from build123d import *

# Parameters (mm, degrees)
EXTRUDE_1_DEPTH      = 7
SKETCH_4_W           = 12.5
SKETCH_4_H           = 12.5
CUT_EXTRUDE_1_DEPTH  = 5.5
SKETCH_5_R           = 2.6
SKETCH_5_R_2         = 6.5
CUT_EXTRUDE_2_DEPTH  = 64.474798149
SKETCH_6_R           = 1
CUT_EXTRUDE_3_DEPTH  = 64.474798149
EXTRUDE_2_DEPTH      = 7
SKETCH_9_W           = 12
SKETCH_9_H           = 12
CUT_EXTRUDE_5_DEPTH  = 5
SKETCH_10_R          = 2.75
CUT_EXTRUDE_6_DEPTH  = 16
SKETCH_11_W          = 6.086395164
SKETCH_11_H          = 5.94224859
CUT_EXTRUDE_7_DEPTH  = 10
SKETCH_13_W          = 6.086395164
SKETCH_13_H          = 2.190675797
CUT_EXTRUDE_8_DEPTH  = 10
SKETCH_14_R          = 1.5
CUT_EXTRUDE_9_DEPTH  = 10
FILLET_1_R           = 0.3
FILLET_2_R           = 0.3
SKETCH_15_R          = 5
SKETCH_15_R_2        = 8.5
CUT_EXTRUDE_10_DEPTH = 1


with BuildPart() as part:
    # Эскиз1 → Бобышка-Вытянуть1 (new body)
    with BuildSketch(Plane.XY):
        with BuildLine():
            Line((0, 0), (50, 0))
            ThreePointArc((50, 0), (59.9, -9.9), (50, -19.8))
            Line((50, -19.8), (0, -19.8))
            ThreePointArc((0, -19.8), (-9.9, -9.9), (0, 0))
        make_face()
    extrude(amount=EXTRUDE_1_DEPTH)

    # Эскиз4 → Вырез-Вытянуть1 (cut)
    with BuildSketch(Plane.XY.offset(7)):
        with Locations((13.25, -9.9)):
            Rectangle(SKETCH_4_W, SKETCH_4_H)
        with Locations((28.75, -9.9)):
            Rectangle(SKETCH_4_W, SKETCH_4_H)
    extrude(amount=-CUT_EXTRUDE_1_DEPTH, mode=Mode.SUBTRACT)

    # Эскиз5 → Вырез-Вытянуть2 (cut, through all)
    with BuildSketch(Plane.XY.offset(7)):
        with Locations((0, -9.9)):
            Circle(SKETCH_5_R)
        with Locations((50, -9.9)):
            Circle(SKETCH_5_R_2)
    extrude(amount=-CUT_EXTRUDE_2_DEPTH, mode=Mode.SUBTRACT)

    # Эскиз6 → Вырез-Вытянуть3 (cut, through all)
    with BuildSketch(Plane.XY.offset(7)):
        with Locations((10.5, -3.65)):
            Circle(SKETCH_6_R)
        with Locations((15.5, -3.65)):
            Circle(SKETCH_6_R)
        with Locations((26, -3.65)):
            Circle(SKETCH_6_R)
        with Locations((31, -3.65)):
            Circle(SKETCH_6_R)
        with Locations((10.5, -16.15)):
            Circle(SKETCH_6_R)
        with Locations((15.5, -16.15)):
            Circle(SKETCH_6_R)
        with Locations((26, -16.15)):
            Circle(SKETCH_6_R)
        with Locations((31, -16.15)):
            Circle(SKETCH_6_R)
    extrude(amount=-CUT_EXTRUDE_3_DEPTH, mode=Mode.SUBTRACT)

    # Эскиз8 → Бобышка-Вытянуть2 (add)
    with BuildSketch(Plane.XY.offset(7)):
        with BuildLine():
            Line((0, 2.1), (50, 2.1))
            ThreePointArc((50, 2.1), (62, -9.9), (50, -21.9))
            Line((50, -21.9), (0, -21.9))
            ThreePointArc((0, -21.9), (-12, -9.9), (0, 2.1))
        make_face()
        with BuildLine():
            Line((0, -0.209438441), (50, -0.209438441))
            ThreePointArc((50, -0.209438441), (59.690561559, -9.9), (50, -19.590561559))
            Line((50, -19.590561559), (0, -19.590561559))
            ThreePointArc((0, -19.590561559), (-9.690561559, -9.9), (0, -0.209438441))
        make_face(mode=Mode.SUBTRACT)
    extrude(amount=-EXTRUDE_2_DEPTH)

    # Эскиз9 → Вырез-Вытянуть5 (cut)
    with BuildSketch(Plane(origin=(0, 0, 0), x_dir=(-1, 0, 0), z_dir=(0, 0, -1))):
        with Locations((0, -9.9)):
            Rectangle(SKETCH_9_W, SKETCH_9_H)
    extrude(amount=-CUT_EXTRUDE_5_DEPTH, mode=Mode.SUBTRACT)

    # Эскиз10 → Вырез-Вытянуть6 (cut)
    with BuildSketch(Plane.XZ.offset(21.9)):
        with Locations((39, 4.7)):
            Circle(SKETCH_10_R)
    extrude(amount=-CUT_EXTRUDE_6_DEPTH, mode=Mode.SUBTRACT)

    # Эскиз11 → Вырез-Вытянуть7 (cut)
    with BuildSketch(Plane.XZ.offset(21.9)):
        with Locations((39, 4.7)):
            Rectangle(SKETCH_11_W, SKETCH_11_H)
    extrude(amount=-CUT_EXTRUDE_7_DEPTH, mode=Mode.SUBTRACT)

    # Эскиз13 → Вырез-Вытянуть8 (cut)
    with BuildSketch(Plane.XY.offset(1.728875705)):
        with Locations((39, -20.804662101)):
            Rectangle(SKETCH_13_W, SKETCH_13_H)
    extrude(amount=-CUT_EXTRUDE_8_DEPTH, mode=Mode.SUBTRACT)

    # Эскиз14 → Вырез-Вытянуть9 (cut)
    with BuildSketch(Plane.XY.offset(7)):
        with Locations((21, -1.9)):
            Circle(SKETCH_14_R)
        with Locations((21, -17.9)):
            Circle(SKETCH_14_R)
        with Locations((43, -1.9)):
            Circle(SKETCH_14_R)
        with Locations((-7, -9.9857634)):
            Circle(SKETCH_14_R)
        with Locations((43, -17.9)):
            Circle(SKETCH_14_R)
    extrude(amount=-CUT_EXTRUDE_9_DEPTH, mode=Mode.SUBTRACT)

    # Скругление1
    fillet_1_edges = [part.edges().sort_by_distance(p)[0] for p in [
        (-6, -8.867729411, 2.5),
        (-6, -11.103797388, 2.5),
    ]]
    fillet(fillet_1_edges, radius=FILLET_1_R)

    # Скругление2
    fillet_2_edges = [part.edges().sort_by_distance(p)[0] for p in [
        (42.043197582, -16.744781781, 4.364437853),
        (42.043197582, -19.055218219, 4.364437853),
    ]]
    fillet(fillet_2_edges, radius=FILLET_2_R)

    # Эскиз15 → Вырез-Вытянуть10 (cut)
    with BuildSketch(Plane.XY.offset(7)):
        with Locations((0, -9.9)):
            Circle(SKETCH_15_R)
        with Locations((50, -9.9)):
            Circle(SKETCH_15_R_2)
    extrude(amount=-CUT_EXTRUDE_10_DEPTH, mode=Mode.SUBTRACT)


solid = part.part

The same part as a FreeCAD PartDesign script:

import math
import FreeCAD as App
import Part
import Sketcher
from FreeCAD import Vector


def edges_at(feature, points):
    """Names of the edges that pass closest to the given points."""
    edges = feature.Shape.Edges
    near = lambda p: min(range(len(edges)), key=lambda i: edges[i].distToShape(Part.Vertex(*p))[0])
    return sorted({f"Edge{near(p) + 1}" for p in points})


def add_polygon(sketch, points):
    """Adds a closed chain of lines whose ends are joined by coincident constraints."""
    first, n = sketch.GeometryCount, len(points)
    for a, b in zip(points, points[1:] + points[:1]):
        sketch.addGeometry(Part.LineSegment(App.Vector(*a, 0), App.Vector(*b, 0)), False)
    for i in range(n):
        sketch.addConstraint(Sketcher.Constraint("Coincident", first + i, 2, first + (i + 1) % n, 1))

doc = App.newDocument("Part")
params = doc.addObject("Spreadsheet::Sheet", "Params")
for row, (alias, value) in enumerate([
    ("sketch1_radius", "9.9 mm"),
    ("sketch1_width", "50 mm"),
    ("pad1_length", "7 mm"),
    ("sketch2_width", "12.5 mm"),
    ("pocket1_length", "5.5 mm"),
    ("sketch3_diameter", "13 mm"),
    ("sketch3_diameter2", "5.2 mm"),
    ("sketch4_diameter", "2 mm"),
    ("sketch5_radius", "12 mm"),
    ("sketch5_width", "50 mm"),
    ("pad2_length", "7 mm"),
    ("sketch6_width", "12 mm"),
    ("pocket4_length", "5 mm"),
    ("sketch7_diameter", "5.5 mm"),
    ("pocket5_length", "16 mm"),
    ("pocket6_length", "10 mm"),
    ("pocket7_length", "10 mm"),
    ("sketch10_diameter", "3 mm"),
    ("pocket8_length", "10 mm"),
    ("fillet_radius", "0.3 mm"),
    ("fillet2_radius", "0.3 mm"),
    ("sketch11_diameter", "10 mm"),
    ("sketch11_diameter2", "17 mm"),
    ("pocket9_length", "1 mm"),
], start=1):
    params.set(f"A{row}", alias)
    params.set(f"B{row}", "=" + value)
    params.setAlias(f"B{row}", alias)

body = doc.addObject("PartDesign::Body", "Body")

# Sketch on XY plane
sketch1 = body.newObject("Sketcher::SketchObject", "Sketch")
sketch1.AttachmentSupport = (doc.getObject("XY_Plane"), [""])
sketch1.MapMode = "FlatFace"
sketch1.addGeometry(Part.LineSegment(Vector(50, 0, 0), Vector(0, 0, 0)), False)
sketch1.addGeometry(Part.ArcOfCircle(Part.Circle(Vector(0, -10, 0), Vector(0, 0, 1), 10), math.radians(90), math.radians(270)), False)
sketch1.addGeometry(Part.LineSegment(Vector(0, -20, 0), Vector(50, -20, 0)), False)
sketch1.addGeometry(Part.ArcOfCircle(Part.Circle(Vector(50, -10, 0), Vector(0, 0, 1), 10), math.radians(-90), math.radians(90)), False)
sketch1.addConstraint(Sketcher.Constraint("Tangent", 0, 2, 1, 1))
sketch1.addConstraint(Sketcher.Constraint("Tangent", 1, 2, 2, 1))
sketch1.addConstraint(Sketcher.Constraint("Tangent", 2, 2, 3, 1))
sketch1.addConstraint(Sketcher.Constraint("Tangent", 3, 2, 0, 1))
sketch1.addConstraint(Sketcher.Constraint("Horizontal", 0))
sketch1.addConstraint(Sketcher.Constraint("Horizontal", 2))
sketch1.addConstraint(Sketcher.Constraint("Coincident", 0, 2, -1, 1))
sketch1.addConstraint(Sketcher.Constraint("Radius", 1, 9.9))
sketch1.addConstraint(Sketcher.Constraint("DistanceX", 0, 2, 0, 1, 50.0))
sketch1.setExpression("Constraints[7]", "Params.sketch1_radius")
sketch1.setExpression("Constraints[8]", "Params.sketch1_width")
pad1 = body.newObject("PartDesign::Pad", "Pad")
pad1.Profile = sketch1
pad1.setExpression("Length", "Params.pad1_length")

# Sketch on XY plane
sketch2 = body.newObject("Sketcher::SketchObject", "Sketch001")
sketch2.AttachmentSupport = (doc.getObject("XY_Plane"), [""])
sketch2.MapMode = "FlatFace"
sketch2.AttachmentOffset = App.Placement(Vector(0, 0, 7), App.Rotation())
add_polygon(sketch2, [(7, -4), (7, -16), (20, -16), (20, -4)])  # lines 0-3
add_polygon(sketch2, [(22, -4), (22, -16), (35, -16), (35, -4)])  # lines 4-7
sketch2.addConstraint(Sketcher.Constraint("Vertical", 0))
sketch2.addConstraint(Sketcher.Constraint("Horizontal", 1))
sketch2.addConstraint(Sketcher.Constraint("Vertical", 2))
sketch2.addConstraint(Sketcher.Constraint("Horizontal", 3))
sketch2.addConstraint(Sketcher.Constraint("Vertical", 4))
sketch2.addConstraint(Sketcher.Constraint("Horizontal", 5))
sketch2.addConstraint(Sketcher.Constraint("Vertical", 6))
sketch2.addConstraint(Sketcher.Constraint("Horizontal", 7))
sketch2.addConstraint(Sketcher.Constraint("Horizontal", 1, 2, 4, 2))
sketch2.addConstraint(Sketcher.Constraint("Horizontal", 3, 2, 6, 2))
sketch2.addConstraint(Sketcher.Constraint("Equal", 3, 5))
sketch2.addConstraint(Sketcher.Constraint("Equal", 7, 0))
sketch2.addConstraint(Sketcher.Constraint("DistanceX", 1, 1, 1, 2, 12.5))
sketch2.addConstraint(Sketcher.Constraint("DistanceX", -1, 1, 0, 2, 7.0))
sketch2.addConstraint(Sketcher.Constraint("DistanceX", -1, 1, 5, 2, 35.0))
sketch2.addConstraint(Sketcher.Constraint("DistanceY", 0, 2, -1, 1, 16.15))
sketch2.setExpression("Constraints[20]", "Params.sketch2_width")
pocket1 = body.newObject("PartDesign::Pocket", "Pocket")
pocket1.Profile = sketch2
pocket1.setExpression("Length", "Params.pocket1_length")

# Sketch on XY plane
sketch3 = body.newObject("Sketcher::SketchObject", "Sketch002")
sketch3.AttachmentSupport = (doc.getObject("XY_Plane"), [""])
sketch3.MapMode = "FlatFace"
sketch3.AttachmentOffset = App.Placement(Vector(0, 0, 7), App.Rotation())
sketch3.addGeometry(Part.Circle(Vector(0, -9.9, 0), Vector(0, 0, 1), 2.6), False)
sketch3.addGeometry(Part.Circle(Vector(50, -9.9, 0), Vector(0, 0, 1), 6.5), False)
sketch3.addConstraint(Sketcher.Constraint("PointOnObject", 0, 3, -2))
sketch3.addConstraint(Sketcher.Constraint("Horizontal", 0, 3, 1, 3))
sketch3.addConstraint(Sketcher.Constraint("Diameter", 1, 13.0))
sketch3.addConstraint(Sketcher.Constraint("Diameter", 0, 5.2))
sketch3.addConstraint(Sketcher.Constraint("DistanceX", -1, 1, 1, 3, 50.0))
sketch3.addConstraint(Sketcher.Constraint("DistanceY", 0, 3, -1, 1, 9.9))
sketch3.setExpression("Constraints[2]", "Params.sketch3_diameter")
sketch3.setExpression("Constraints[3]", "Params.sketch3_diameter2")
pocket2 = body.newObject("PartDesign::Pocket", "Pocket001")
pocket2.Profile = sketch3
pocket2.Type = "ThroughAll"

# Sketch on XY plane
sketch4 = body.newObject("Sketcher::SketchObject", "Sketch003")
sketch4.AttachmentSupport = (doc.getObject("XY_Plane"), [""])
sketch4.MapMode = "FlatFace"
sketch4.AttachmentOffset = App.Placement(Vector(0, 0, 7), App.Rotation())
sketch4.addGeometry(Part.Circle(Vector(10.5, -3.6, 0), Vector(0, 0, 1), 1), False)
sketch4.addGeometry(Part.Circle(Vector(15.5, -3.6, 0), Vector(0, 0, 1), 1), False)
sketch4.addGeometry(Part.Circle(Vector(26, -3.6, 0), Vector(0, 0, 1), 1), False)
sketch4.addGeometry(Part.Circle(Vector(31, -3.6, 0), Vector(0, 0, 1), 1), False)
sketch4.addGeometry(Part.Circle(Vector(10.5, -16.1, 0), Vector(0, 0, 1), 1), False)
sketch4.addGeometry(Part.Circle(Vector(15.5, -16.1, 0), Vector(0, 0, 1), 1), False)
sketch4.addGeometry(Part.Circle(Vector(26, -16.1, 0), Vector(0, 0, 1), 1), False)
sketch4.addGeometry(Part.Circle(Vector(31, -16.1, 0), Vector(0, 0, 1), 1), False)
sketch4.addConstraint(Sketcher.Constraint("Equal", 0, 1))
sketch4.addConstraint(Sketcher.Constraint("Equal", 1, 2))
sketch4.addConstraint(Sketcher.Constraint("Equal", 2, 3))
sketch4.addConstraint(Sketcher.Constraint("Equal", 3, 4))
sketch4.addConstraint(Sketcher.Constraint("Equal", 4, 5))
sketch4.addConstraint(Sketcher.Constraint("Equal", 5, 6))
sketch4.addConstraint(Sketcher.Constraint("Equal", 6, 7))
sketch4.addConstraint(Sketcher.Constraint("Horizontal", 0, 3, 1, 3))
sketch4.addConstraint(Sketcher.Constraint("Horizontal", 1, 3, 2, 3))
sketch4.addConstraint(Sketcher.Constraint("Horizontal", 2, 3, 3, 3))
sketch4.addConstraint(Sketcher.Constraint("Horizontal", 4, 3, 5, 3))
sketch4.addConstraint(Sketcher.Constraint("Horizontal", 5, 3, 6, 3))
sketch4.addConstraint(Sketcher.Constraint("Horizontal", 6, 3, 7, 3))
sketch4.addConstraint(Sketcher.Constraint("Vertical", 0, 3, 4, 3))
sketch4.addConstraint(Sketcher.Constraint("Vertical", 1, 3, 5, 3))
sketch4.addConstraint(Sketcher.Constraint("Vertical", 2, 3, 6, 3))
sketch4.addConstraint(Sketcher.Constraint("Vertical", 3, 3, 7, 3))
sketch4.addConstraint(Sketcher.Constraint("Diameter", 0, 2.0))
sketch4.addConstraint(Sketcher.Constraint("DistanceX", -1, 1, 2, 3, 26.0))
sketch4.addConstraint(Sketcher.Constraint("DistanceX", -1, 1, 3, 3, 31.0))
sketch4.addConstraint(Sketcher.Constraint("DistanceX", 0, 3, 1, 3, 5.0))
sketch4.addConstraint(Sketcher.Constraint("DistanceX", -1, 1, 0, 3, 10.5))
sketch4.addConstraint(Sketcher.Constraint("DistanceY", 4, 3, 0, 3, 12.5))
sketch4.addConstraint(Sketcher.Constraint("DistanceY", 0, 3, -1, 1, 3.65))
sketch4.setExpression("Constraints[17]", "Params.sketch4_diameter")
pocket3 = body.newObject("PartDesign::Pocket", "Pocket002")
pocket3.Profile = sketch4
pocket3.Type = "ThroughAll"

# Sketch on XY plane
sketch5 = body.newObject("Sketcher::SketchObject", "Sketch004")
sketch5.AttachmentSupport = (doc.getObject("XY_Plane"), [""])
sketch5.MapMode = "FlatFace"
sketch5.AttachmentOffset = App.Placement(Vector(0, 0, 7), App.Rotation())
sketch5.addGeometry(Part.LineSegment(Vector(50, 2, 0), Vector(0, 2, 0)), False)
sketch5.addGeometry(Part.ArcOfCircle(Part.Circle(Vector(0, -10, 0), Vector(0, 0, 1), 12), math.radians(90), math.radians(270)), False)
sketch5.addGeometry(Part.LineSegment(Vector(0, -22, 0), Vector(50, -22, 0)), False)
sketch5.addGeometry(Part.ArcOfCircle(Part.Circle(Vector(50, -10, 0), Vector(0, 0, 1), 12), math.radians(-90), math.radians(90)), False)
sketch5.addGeometry(Part.LineSegment(Vector(0, 0, 0), Vector(50, 0, 0)), False)
sketch5.addGeometry(Part.ArcOfCircle(Part.Circle(Vector(50, -10, 0), Vector(0, 0, 1), 10), math.radians(-90), math.radians(90)), False)
sketch5.addGeometry(Part.LineSegment(Vector(50, -20, 0), Vector(0, -20, 0)), False)
sketch5.addGeometry(Part.ArcOfCircle(Part.Circle(Vector(0, -10, 0), Vector(0, 0, 1), 10), math.radians(90), math.radians(270)), False)
sketch5.addConstraint(Sketcher.Constraint("Tangent", 0, 2, 1, 1))
sketch5.addConstraint(Sketcher.Constraint("Tangent", 1, 2, 2, 1))
sketch5.addConstraint(Sketcher.Constraint("Tangent", 2, 2, 3, 1))
sketch5.addConstraint(Sketcher.Constraint("Tangent", 3, 2, 0, 1))
sketch5.addConstraint(Sketcher.Constraint("Tangent", 4, 2, 5, 2))
sketch5.addConstraint(Sketcher.Constraint("Tangent", 5, 1, 6, 1))
sketch5.addConstraint(Sketcher.Constraint("Tangent", 6, 2, 7, 2))
sketch5.addConstraint(Sketcher.Constraint("Tangent", 7, 1, 4, 1))
sketch5.addConstraint(Sketcher.Constraint("Horizontal", 0))
sketch5.addConstraint(Sketcher.Constraint("Horizontal", 2))
sketch5.addConstraint(Sketcher.Constraint("Horizontal", 4))
sketch5.addConstraint(Sketcher.Constraint("Horizontal", 6))
sketch5.addConstraint(Sketcher.Constraint("Coincident", 5, 3, 3, 3))
sketch5.addConstraint(Sketcher.Constraint("PointOnObject", 1, 3, -2))
sketch5.addConstraint(Sketcher.Constraint("PointOnObject", 7, 3, -2))
sketch5.addConstraint(Sketcher.Constraint("Radius", 1, 12.0))
sketch5.addConstraint(Sketcher.Constraint("DistanceX", 0, 2, 0, 1, 50.0))
sketch5.addConstraint(Sketcher.Constraint("DistanceY", 1, 3, -1, 1, 9.9))
sketch5.addConstraint(Sketcher.Constraint("Radius", 5, 9.690562))
sketch5.setExpression("Constraints[15]", "Params.sketch5_radius")
sketch5.setExpression("Constraints[16]", "Params.sketch5_width")
pad2 = body.newObject("PartDesign::Pad", "Pad001")
pad2.Profile = sketch5
pad2.setExpression("Length", "Params.pad2_length")
pad2.Reversed = True

# Sketch on XY plane
sketch6 = body.newObject("Sketcher::SketchObject", "Sketch005")
sketch6.AttachmentSupport = (doc.getObject("XY_Plane"), [""])
sketch6.MapMode = "FlatFace"
add_polygon(sketch6, [(6, -4), (6, -16), (-6, -16), (-6, -4)])  # lines 0-3
sketch6.addConstraint(Sketcher.Constraint("Vertical", 0))
sketch6.addConstraint(Sketcher.Constraint("Horizontal", 1))
sketch6.addConstraint(Sketcher.Constraint("Vertical", 2))
sketch6.addConstraint(Sketcher.Constraint("Horizontal", 3))
sketch6.addConstraint(Sketcher.Constraint("Equal", 3, 0))
sketch6.addConstraint(Sketcher.Constraint("DistanceX", 1, 2, 1, 1, 12.0))
sketch6.addConstraint(Sketcher.Constraint("DistanceX", -1, 1, 0, 2, 6.0))
sketch6.addConstraint(Sketcher.Constraint("DistanceY", 0, 2, -1, 1, 15.9))
sketch6.setExpression("Constraints[9]", "Params.sketch6_width")
pocket4 = body.newObject("PartDesign::Pocket", "Pocket003")
pocket4.Profile = sketch6
pocket4.setExpression("Length", "Params.pocket4_length")
pocket4.Reversed = True

# Sketch on XZ plane
sketch7 = body.newObject("Sketcher::SketchObject", "Sketch006")
sketch7.AttachmentSupport = (doc.getObject("XZ_Plane"), [""])
sketch7.MapMode = "FlatFace"
sketch7.AttachmentOffset = App.Placement(Vector(0, 0, 21.9), App.Rotation())
sketch7.addGeometry(Part.Circle(Vector(39, 4.7, 0), Vector(0, 0, 1), 2.8), False)
sketch7.addConstraint(Sketcher.Constraint("Diameter", 0, 5.5))
sketch7.addConstraint(Sketcher.Constraint("DistanceX", -1, 1, 0, 3, 39.0))
sketch7.addConstraint(Sketcher.Constraint("DistanceY", -1, 1, 0, 3, 4.7))
sketch7.setExpression("Constraints[0]", "Params.sketch7_diameter")
pocket5 = body.newObject("PartDesign::Pocket", "Pocket004")
pocket5.Profile = sketch7
pocket5.setExpression("Length", "Params.pocket5_length")

# Sketch on XZ plane
sketch8 = body.newObject("Sketcher::SketchObject", "Sketch007")
sketch8.AttachmentSupport = (doc.getObject("XZ_Plane"), [""])
sketch8.MapMode = "FlatFace"
sketch8.AttachmentOffset = App.Placement(Vector(0, 0, 21.9), App.Rotation())
add_polygon(sketch8, [(36, 8), (36, 2), (42, 2), (42, 8)])  # lines 0-3
sketch8.addConstraint(Sketcher.Constraint("Vertical", 0))
sketch8.addConstraint(Sketcher.Constraint("Horizontal", 1))
sketch8.addConstraint(Sketcher.Constraint("Vertical", 2))
sketch8.addConstraint(Sketcher.Constraint("Horizontal", 3))
sketch8.addConstraint(Sketcher.Constraint("DistanceY", 0, 2, 0, 1, 5.942249))
sketch8.addConstraint(Sketcher.Constraint("DistanceX", 1, 1, 1, 2, 6.086395))
sketch8.addConstraint(Sketcher.Constraint("DistanceX", -1, 1, 0, 2, 35.956802))
sketch8.addConstraint(Sketcher.Constraint("DistanceY", -1, 1, 0, 2, 1.728876))
pocket6 = body.newObject("PartDesign::Pocket", "Pocket005")
pocket6.Profile = sketch8
pocket6.setExpression("Length", "Params.pocket6_length")

# Sketch on XY plane
sketch9 = body.newObject("Sketcher::SketchObject", "Sketch008")
sketch9.AttachmentSupport = (doc.getObject("XY_Plane"), [""])
sketch9.MapMode = "FlatFace"
sketch9.AttachmentOffset = App.Placement(Vector(0, 0, 1.728876), App.Rotation())
add_polygon(sketch9, [(36, -19.7), (36, -21.9), (42, -21.9), (42, -19.7)])  # lines 0-3
sketch9.addConstraint(Sketcher.Constraint("Vertical", 0))
sketch9.addConstraint(Sketcher.Constraint("Horizontal", 1))
sketch9.addConstraint(Sketcher.Constraint("Vertical", 2))
sketch9.addConstraint(Sketcher.Constraint("Horizontal", 3))
sketch9.addConstraint(Sketcher.Constraint("DistanceY", 0, 2, -1, 1, 21.9))
sketch9.addConstraint(Sketcher.Constraint("DistanceX", 1, 1, 1, 2, 6.086395))
sketch9.addConstraint(Sketcher.Constraint("DistanceY", 0, 2, 0, 1, 2.190676))
sketch9.addConstraint(Sketcher.Constraint("DistanceX", -1, 1, 0, 2, 35.956802))
pocket7 = body.newObject("PartDesign::Pocket", "Pocket006")
pocket7.Profile = sketch9
pocket7.setExpression("Length", "Params.pocket7_length")

# Sketch on XY plane
sketch10 = body.newObject("Sketcher::SketchObject", "Sketch009")
sketch10.AttachmentSupport = (doc.getObject("XY_Plane"), [""])
sketch10.MapMode = "FlatFace"
sketch10.AttachmentOffset = App.Placement(Vector(0, 0, 7), App.Rotation())
sketch10.addGeometry(Part.Circle(Vector(21, -1.9, 0), Vector(0, 0, 1), 1.5), False)
sketch10.addGeometry(Part.Circle(Vector(21, -17.9, 0), Vector(0, 0, 1), 1.5), False)
sketch10.addGeometry(Part.Circle(Vector(43, -1.9, 0), Vector(0, 0, 1), 1.5), False)
sketch10.addGeometry(Part.Circle(Vector(-7, -10, 0), Vector(0, 0, 1), 1.5), False)
sketch10.addGeometry(Part.Circle(Vector(43, -17.9, 0), Vector(0, 0, 1), 1.5), False)
sketch10.addConstraint(Sketcher.Constraint("Equal", 0, 1))
sketch10.addConstraint(Sketcher.Constraint("Equal", 1, 2))
sketch10.addConstraint(Sketcher.Constraint("Equal", 2, 3))
sketch10.addConstraint(Sketcher.Constraint("Equal", 3, 4))
sketch10.addConstraint(Sketcher.Constraint("Horizontal", 0, 3, 2, 3))
sketch10.addConstraint(Sketcher.Constraint("Horizontal", 1, 3, 4, 3))
sketch10.addConstraint(Sketcher.Constraint("Vertical", 0, 3, 1, 3))
sketch10.addConstraint(Sketcher.Constraint("Vertical", 2, 3, 4, 3))
sketch10.addConstraint(Sketcher.Constraint("Diameter", 0, 3.0))
sketch10.addConstraint(Sketcher.Constraint("DistanceX", -1, 1, 0, 3, 21.0))
sketch10.addConstraint(Sketcher.Constraint("DistanceX", -1, 1, 2, 3, 43.0))
sketch10.addConstraint(Sketcher.Constraint("DistanceX", 3, 3, -1, 1, 7.0))
sketch10.addConstraint(Sketcher.Constraint("DistanceY", 1, 3, 0, 3, 16.0))
sketch10.addConstraint(Sketcher.Constraint("DistanceY", 0, 3, -1, 1, 1.9))
sketch10.addConstraint(Sketcher.Constraint("DistanceY", 3, 3, -1, 1, 9.985763))
sketch10.setExpression("Constraints[8]", "Params.sketch10_diameter")
pocket8 = body.newObject("PartDesign::Pocket", "Pocket007")
pocket8.Profile = sketch10
pocket8.setExpression("Length", "Params.pocket8_length")
doc.recompute()

fillet = body.newObject("PartDesign::Fillet", "Fillet")
fillet.Base = (pocket8, edges_at(pocket8, [(-6, -8.868, 2.5), (-6, -11.104, 2.5)]))
fillet.setExpression("Radius", "Params.fillet_radius")
doc.recompute()

fillet2 = body.newObject("PartDesign::Fillet", "Fillet001")
fillet2.Base = (fillet, edges_at(fillet, [(42.043, -16.745, 4.364), (42.043, -19.055, 4.364)]))
fillet2.setExpression("Radius", "Params.fillet2_radius")

# Sketch on XY plane
sketch11 = body.newObject("Sketcher::SketchObject", "Sketch010")
sketch11.AttachmentSupport = (doc.getObject("XY_Plane"), [""])
sketch11.MapMode = "FlatFace"
sketch11.AttachmentOffset = App.Placement(Vector(0, 0, 7), App.Rotation())
sketch11.addGeometry(Part.Circle(Vector(0, -10, 0), Vector(0, 0, 1), 5), False)
sketch11.addGeometry(Part.Circle(Vector(50, -10, 0), Vector(0, 0, 1), 8), False)
sketch11.addConstraint(Sketcher.Constraint("PointOnObject", 0, 3, -2))
sketch11.addConstraint(Sketcher.Constraint("Horizontal", 0, 3, 1, 3))
sketch11.addConstraint(Sketcher.Constraint("Diameter", 0, 10.0))
sketch11.addConstraint(Sketcher.Constraint("Diameter", 1, 17.0))
sketch11.addConstraint(Sketcher.Constraint("DistanceX", -1, 1, 1, 3, 50.0))
sketch11.addConstraint(Sketcher.Constraint("DistanceY", 0, 3, -1, 1, 9.9))
sketch11.setExpression("Constraints[2]", "Params.sketch11_diameter")
sketch11.setExpression("Constraints[3]", "Params.sketch11_diameter2")
pocket9 = body.newObject("PartDesign::Pocket", "Pocket008")
pocket9.Profile = sketch11
pocket9.setExpression("Length", "Params.pocket9_length")

doc.recompute()
